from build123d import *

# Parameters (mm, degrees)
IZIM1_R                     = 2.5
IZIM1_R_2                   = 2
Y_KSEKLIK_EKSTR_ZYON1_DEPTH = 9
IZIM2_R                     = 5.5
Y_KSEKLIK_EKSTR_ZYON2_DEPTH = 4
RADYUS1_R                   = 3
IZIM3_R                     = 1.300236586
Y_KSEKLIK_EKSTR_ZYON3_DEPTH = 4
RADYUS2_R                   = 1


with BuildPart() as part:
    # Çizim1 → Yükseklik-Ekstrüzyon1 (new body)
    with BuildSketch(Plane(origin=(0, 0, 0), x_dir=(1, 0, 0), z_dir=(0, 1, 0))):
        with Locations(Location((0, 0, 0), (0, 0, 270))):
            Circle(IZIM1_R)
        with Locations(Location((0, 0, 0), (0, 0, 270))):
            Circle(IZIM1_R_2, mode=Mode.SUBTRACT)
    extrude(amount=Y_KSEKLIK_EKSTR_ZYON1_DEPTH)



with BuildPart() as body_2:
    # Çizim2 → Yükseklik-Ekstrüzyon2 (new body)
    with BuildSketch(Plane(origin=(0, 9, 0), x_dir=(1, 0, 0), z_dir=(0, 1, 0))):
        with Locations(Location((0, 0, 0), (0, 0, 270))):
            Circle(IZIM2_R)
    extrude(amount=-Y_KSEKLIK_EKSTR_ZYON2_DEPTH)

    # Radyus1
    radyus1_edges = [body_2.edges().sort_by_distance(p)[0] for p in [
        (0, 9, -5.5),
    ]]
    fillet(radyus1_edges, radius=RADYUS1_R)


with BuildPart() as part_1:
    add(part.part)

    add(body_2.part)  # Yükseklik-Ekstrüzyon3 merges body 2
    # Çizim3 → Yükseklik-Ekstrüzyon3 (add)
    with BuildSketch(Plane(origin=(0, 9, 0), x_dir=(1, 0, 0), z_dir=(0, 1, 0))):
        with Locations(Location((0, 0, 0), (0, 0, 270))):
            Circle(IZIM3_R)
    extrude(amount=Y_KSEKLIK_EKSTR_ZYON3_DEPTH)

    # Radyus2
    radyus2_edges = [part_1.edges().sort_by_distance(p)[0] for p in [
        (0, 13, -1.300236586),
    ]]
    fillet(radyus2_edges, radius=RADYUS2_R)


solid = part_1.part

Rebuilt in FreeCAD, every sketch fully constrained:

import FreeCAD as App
import Part
import Sketcher

V = App.Vector


def edges_at(feature, points):
    """Names of the edges that pass closest to the given points."""
    edges = feature.Shape.Edges
    near = lambda p: min(range(len(edges)), key=lambda i: edges[i].distToShape(Part.Vertex(*p))[0])
    return sorted({f"Edge{near(p) + 1}" for p in points})

doc = App.newDocument("Part")
body = doc.addObject("PartDesign::Body", "Body")

sketch1 = doc.addObject("Sketcher::SketchObject", "Sketch")
body.addObject(sketch1)
sketch1.AttachmentSupport = (doc.XZ_Plane, [""])
sketch1.MapMode = "FlatFace"
sketch1.addGeometry([
    Part.Circle(V(0, 0, 0), V(0, 0, 1), 2.5),
    Part.Circle(V(0, 0, 0), V(0, 0, 1), 2),
], False)
sketch1.addConstraint([
    Sketcher.Constraint("Coincident", 0, 3, -1, 1),
    Sketcher.Constraint("Coincident", 1, 3, -1, 1),
    Sketcher.Constraint("Diameter", 0, 5.0),
    Sketcher.Constraint("Diameter", 1, 4.0),
])
pad1 = doc.addObject("PartDesign::Pad", "Pad")
body.addObject(pad1)
pad1.Profile = sketch1
pad1.Length = 9
pad1.Reversed = True
body2 = doc.addObject("PartDesign::Body", "Body001")

sketch2 = doc.addObject("Sketcher::SketchObject", "Sketch001")
body2.addObject(sketch2)
sketch2.AttachmentSupport = (doc.getObject("XZ_Plane001"), [""])
sketch2.MapMode = "FlatFace"
sketch2.AttachmentOffset = App.Placement(V(0, 0, -9), App.Rotation())
sketch2.addGeometry(Part.Circle(V(0, 0, 0), V(0, 0, 1), 6), False)
sketch2.addConstraint([
    Sketcher.Constraint("Coincident", 0, 3, -1, 1),
    Sketcher.Constraint("Diameter", 0, 11.0),
])
pad2 = doc.addObject("PartDesign::Pad", "Pad001")
body2.addObject(pad2)
pad2.Profile = sketch2
pad2.Length = 4
doc.recompute()

fillet = doc.addObject("PartDesign::Fillet", "Fillet")
body2.addObject(fillet)
fillet.Base = (pad2, edges_at(pad2, [(0, 9, -5.5)]))
fillet.Radius = 3
doc.recompute()

boolean = doc.addObject("PartDesign::Boolean", "Boolean")
body.addObject(boolean)
boolean.Type = "Fuse"
boolean.addObjects([body2])

sketch3 = doc.addObject("Sketcher::SketchObject", "Sketch002")
body.addObject(sketch3)
sketch3.AttachmentSupport = (doc.XZ_Plane, [""])
sketch3.MapMode = "FlatFace"
sketch3.AttachmentOffset = App.Placement(V(0, 0, -9), App.Rotation())
sketch3.addGeometry(Part.Circle(V(0, 0, 0), V(0, 0, 1), 1.3), False)
sketch3.addConstraint([
    Sketcher.Constraint("Coincident", 0, 3, -1, 1),
    Sketcher.Constraint("Diameter", 0, 2.600473),
])
pad3 = doc.addObject("PartDesign::Pad", "Pad002")
body.addObject(pad3)
pad3.Profile = sketch3
pad3.Length = 4
pad3.Reversed = True
doc.recompute()

fillet2 = doc.addObject("PartDesign::Fillet", "Fillet001")
body.addObject(fillet2)
fillet2.Base = (pad3, edges_at(pad3, [(0, 13, -1.3)]))
fillet2.Radius = 1

doc.recompute()
